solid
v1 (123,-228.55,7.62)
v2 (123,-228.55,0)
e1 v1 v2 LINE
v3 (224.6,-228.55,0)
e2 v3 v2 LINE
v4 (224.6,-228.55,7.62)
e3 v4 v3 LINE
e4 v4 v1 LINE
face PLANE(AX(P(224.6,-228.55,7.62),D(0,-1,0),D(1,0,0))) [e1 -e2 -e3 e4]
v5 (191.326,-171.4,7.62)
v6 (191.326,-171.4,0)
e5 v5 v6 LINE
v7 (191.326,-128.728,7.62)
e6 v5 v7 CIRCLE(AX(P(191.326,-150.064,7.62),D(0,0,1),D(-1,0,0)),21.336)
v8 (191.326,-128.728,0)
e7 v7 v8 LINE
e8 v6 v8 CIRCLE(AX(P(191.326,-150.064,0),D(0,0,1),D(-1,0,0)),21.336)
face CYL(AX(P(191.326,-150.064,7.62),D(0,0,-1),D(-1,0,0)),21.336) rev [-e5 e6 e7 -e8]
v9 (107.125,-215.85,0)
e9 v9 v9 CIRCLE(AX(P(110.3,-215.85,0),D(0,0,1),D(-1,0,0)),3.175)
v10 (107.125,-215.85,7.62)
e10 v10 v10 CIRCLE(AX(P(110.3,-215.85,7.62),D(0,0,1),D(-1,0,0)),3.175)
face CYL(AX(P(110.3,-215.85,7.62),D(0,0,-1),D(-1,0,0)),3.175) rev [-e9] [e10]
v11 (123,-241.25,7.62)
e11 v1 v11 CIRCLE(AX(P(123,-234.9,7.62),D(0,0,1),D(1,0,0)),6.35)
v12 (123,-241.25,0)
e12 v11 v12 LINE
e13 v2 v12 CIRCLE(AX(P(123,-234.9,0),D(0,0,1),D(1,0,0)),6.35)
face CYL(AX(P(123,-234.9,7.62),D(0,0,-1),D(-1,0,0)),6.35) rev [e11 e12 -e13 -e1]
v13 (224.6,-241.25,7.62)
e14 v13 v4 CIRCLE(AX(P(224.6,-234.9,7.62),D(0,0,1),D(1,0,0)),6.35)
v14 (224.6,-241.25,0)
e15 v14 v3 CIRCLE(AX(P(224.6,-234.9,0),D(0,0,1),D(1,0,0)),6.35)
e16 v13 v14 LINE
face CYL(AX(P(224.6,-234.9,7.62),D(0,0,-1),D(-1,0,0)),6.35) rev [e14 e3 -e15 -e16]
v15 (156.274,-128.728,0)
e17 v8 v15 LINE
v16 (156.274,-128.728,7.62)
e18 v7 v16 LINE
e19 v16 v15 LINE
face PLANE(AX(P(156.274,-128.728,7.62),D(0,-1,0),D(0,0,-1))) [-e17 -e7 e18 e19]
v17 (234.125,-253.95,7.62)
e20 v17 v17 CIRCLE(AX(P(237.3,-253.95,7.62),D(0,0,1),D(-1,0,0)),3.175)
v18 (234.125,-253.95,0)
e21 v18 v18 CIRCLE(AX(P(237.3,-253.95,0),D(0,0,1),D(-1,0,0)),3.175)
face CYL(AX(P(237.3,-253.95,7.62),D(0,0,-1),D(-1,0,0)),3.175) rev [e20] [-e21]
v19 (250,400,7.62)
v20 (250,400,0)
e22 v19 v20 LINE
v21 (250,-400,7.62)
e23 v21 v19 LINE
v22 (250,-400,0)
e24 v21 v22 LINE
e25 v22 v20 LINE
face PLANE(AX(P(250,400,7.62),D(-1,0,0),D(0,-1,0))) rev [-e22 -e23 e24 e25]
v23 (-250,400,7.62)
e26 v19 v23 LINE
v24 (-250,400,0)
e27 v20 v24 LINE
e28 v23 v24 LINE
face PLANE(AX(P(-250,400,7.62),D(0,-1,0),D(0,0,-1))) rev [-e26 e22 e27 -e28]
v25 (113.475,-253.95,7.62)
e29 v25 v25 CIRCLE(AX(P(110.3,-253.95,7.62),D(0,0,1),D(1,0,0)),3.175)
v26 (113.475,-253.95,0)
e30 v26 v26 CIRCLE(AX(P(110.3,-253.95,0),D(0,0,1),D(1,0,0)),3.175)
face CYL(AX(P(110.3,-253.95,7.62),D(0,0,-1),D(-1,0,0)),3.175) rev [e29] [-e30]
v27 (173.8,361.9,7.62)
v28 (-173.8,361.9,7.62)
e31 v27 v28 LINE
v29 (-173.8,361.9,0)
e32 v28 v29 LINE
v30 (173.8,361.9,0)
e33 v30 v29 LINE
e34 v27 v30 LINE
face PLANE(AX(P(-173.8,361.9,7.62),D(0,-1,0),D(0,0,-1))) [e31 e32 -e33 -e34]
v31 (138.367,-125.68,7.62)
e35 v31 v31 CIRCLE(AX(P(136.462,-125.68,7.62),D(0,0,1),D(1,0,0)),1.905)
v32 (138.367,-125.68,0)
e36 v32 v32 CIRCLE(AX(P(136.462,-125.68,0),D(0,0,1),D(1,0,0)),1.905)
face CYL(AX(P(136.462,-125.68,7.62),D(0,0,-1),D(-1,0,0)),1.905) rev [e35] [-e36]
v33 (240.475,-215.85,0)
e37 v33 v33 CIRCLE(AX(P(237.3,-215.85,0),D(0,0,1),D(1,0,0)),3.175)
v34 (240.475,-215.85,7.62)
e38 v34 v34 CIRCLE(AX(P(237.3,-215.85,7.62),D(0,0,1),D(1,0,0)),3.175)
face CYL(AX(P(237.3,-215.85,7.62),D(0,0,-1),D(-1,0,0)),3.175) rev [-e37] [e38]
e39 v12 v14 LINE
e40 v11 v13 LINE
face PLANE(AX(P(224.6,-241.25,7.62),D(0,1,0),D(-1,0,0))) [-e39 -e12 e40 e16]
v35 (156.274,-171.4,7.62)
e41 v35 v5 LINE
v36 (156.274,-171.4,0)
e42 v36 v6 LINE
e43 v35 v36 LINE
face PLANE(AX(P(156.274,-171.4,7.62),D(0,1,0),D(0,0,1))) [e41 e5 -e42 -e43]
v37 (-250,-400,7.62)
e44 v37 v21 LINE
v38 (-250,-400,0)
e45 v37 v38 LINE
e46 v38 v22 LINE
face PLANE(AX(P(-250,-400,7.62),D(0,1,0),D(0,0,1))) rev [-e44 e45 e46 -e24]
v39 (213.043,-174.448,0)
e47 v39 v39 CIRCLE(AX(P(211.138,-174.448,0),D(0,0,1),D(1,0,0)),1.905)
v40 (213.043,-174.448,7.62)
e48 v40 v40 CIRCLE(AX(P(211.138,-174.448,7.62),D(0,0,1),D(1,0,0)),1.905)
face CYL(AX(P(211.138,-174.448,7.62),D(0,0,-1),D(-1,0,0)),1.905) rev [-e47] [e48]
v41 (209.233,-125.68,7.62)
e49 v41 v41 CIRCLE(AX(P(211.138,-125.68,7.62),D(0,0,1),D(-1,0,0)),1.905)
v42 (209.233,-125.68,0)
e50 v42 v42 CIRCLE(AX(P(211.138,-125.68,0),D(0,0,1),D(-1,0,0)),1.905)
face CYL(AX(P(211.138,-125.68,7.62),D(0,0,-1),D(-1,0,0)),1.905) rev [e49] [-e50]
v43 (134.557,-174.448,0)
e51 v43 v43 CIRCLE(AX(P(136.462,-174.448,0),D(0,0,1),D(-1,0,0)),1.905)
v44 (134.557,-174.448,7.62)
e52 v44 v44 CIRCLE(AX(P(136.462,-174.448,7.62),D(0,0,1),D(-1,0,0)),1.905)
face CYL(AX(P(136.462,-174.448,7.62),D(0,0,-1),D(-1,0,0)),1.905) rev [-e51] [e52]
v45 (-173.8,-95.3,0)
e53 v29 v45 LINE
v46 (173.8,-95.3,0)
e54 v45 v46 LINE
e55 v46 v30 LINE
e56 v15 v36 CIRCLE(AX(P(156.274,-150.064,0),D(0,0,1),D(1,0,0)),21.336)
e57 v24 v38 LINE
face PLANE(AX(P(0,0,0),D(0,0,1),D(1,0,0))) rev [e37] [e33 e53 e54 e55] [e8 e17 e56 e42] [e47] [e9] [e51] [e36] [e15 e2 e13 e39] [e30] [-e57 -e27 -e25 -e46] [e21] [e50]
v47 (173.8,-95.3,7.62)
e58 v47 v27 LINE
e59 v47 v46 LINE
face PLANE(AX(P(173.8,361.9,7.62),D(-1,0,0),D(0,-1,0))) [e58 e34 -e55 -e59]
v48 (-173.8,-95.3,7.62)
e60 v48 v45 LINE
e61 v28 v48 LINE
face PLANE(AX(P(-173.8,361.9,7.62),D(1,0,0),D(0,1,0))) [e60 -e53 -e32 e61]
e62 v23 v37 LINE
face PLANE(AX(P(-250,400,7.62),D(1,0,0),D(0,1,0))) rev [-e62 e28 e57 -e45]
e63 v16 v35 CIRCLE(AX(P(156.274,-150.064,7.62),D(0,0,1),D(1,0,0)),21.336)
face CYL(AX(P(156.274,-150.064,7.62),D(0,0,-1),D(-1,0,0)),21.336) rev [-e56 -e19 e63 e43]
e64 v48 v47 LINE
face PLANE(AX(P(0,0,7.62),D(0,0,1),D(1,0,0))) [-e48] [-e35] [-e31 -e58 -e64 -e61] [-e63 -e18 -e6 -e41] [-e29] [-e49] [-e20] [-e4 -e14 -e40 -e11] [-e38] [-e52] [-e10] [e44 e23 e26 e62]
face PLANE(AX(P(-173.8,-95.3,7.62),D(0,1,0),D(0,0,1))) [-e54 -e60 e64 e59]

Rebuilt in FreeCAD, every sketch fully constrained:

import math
import FreeCAD as App
import Part
import Sketcher

V = App.Vector
Q = App.Units.Quantity


def add_polygon(sketch, points):
    """Adds a closed chain of lines whose ends are joined by coincident constraints."""
    first, n = sketch.GeometryCount, len(points)
    for a, b in zip(points, points[1:] + points[:1]):
        sketch.addGeometry(Part.LineSegment(App.Vector(*a, 0), App.Vector(*b, 0)), False)
    for i in range(n):
        sketch.addConstraint(Sketcher.Constraint("Coincident", first + i, 2, first + (i + 1) % n, 1))

doc = App.newDocument("Part")
body = doc.addObject("PartDesign::Body", "Body")

# Sketch on XY plane
sketch1 = body.newObject("Sketcher::SketchObject", "Sketch")
sketch1.AttachmentSupport = (doc.getObject("XY_Plane"), [""])
sketch1.MapMode = "FlatFace"
add_polygon(sketch1, [(-250, 400), (-250, -400), (250, -400), (250, 400)])  # lines 0-3
sketch1.addGeometry(Part.Circle(V(110.3, -253.95, 0), V(0, 0, 1), 3.175), False)  # 4
sketch1.addGeometry(Part.Circle(V(110.3, -215.85, 0), V(0, 0, 1), 3.175), False)  # 5
sketch1.addGeometry(Part.Circle(V(136.462, -174.448, 0), V(0, 0, 1), 1.905), False)  # 6
sketch1.addGeometry(Part.Circle(V(136.462, -125.68, 0), V(0, 0, 1), 1.905), False)  # 7
sketch1.addGeometry(Part.ArcOfCircle(Part.Circle(V(224.6, -234.9, 0), V(0, 0, 1), 6.35), math.radians(-90), math.radians(90)), False)  # 8
sketch1.addGeometry(Part.LineSegment(V(224.6, -241.25, 0), V(123, -241.25, 0)), False)  # 9
sketch1.addGeometry(Part.ArcOfCircle(Part.Circle(V(123, -234.9, 0), V(0, 0, 1), 6.35), math.radians(90), math.radians(270)), False)  # 10
sketch1.addGeometry(Part.LineSegment(V(123, -228.55, 0), V(224.6, -228.55, 0)), False)  # 11
sketch1.addGeometry(Part.Circle(V(237.3, -253.95, 0), V(0, 0, 1), 3.175), False)  # 12
sketch1.addGeometry(Part.Circle(V(237.3, -215.85, 0), V(0, 0, 1), 3.175), False)  # 13
sketch1.addGeometry(Part.ArcOfCircle(Part.Circle(V(156.274, -150.064, 0), V(0, 0, 1), 21.336), math.radians(90), math.radians(270)), False)  # 14
sketch1.addGeometry(Part.LineSegment(V(156.274, -128.728, 0), V(191.326, -128.728, 0)), False)  # 15
sketch1.addGeometry(Part.ArcOfCircle(Part.Circle(V(191.326, -150.064, 0), V(0, 0, 1), 21.336), math.radians(-90), math.radians(90)), False)  # 16
sketch1.addGeometry(Part.LineSegment(V(191.326, -171.4, 0), V(156.274, -171.4, 0)), False)  # 17
sketch1.addGeometry(Part.Circle(V(211.138, -174.448, 0), V(0, 0, 1), 1.905), False)  # 18
sketch1.addGeometry(Part.Circle(V(211.138, -125.68, 0), V(0, 0, 1), 1.905), False)  # 19
add_polygon(sketch1, [(173.8, -95.3), (-173.8, -95.3), (-173.8, 361.9), (173.8, 361.9)])  # lines 20-23
sketch1.addConstraint([
    Sketcher.Constraint("Tangent", 8, 1, 9, 1),
    Sketcher.Constraint("Tangent", 9, 2, 10, 2),
    Sketcher.Constraint("Tangent", 10, 1, 11, 1),
    Sketcher.Constraint("Tangent", 11, 2, 8, 2),
    Sketcher.Constraint("Tangent", 14, 1, 15, 1),
    Sketcher.Constraint("Tangent", 15, 2, 16, 2),
    Sketcher.Constraint("Tangent", 16, 1, 17, 1),
    Sketcher.Constraint("Tangent", 17, 2, 14, 2),
    Sketcher.Constraint("Vertical", 0),
    Sketcher.Constraint("Horizontal", 1),
    Sketcher.Constraint("Vertical", 2),
    Sketcher.Constraint("Horizontal", 3),
    Sketcher.Constraint("Horizontal", 9),
    Sketcher.Constraint("Horizontal", 11),
    Sketcher.Constraint("Horizontal", 15),
    Sketcher.Constraint("Horizontal", 17),
    Sketcher.Constraint("Horizontal", 20),
    Sketcher.Constraint("Vertical", 21),
    Sketcher.Constraint("Horizontal", 22),
    Sketcher.Constraint("Vertical", 23),
    Sketcher.Constraint("Equal", 4, 5),
    Sketcher.Constraint("Equal", 6, 7),
    Sketcher.Constraint("Equal", 5, 12),
    Sketcher.Constraint("Equal", 12, 13),
    Sketcher.Constraint("Equal", 7, 18),
    Sketcher.Constraint("Equal", 18, 19),
    Sketcher.Constraint("Symmetric", 0, 2, 2, 2, -1, 1),
    Sketcher.Constraint("Horizontal", 4, 3, 12, 3),
    Sketcher.Constraint("Horizontal", 5, 3, 13, 3),
    Sketcher.Constraint("Horizontal", 6, 3, 18, 3),
    Sketcher.Constraint("Horizontal", 7, 3, 19, 3),
    Sketcher.Constraint("Vertical", 4, 3, 5, 3),
    Sketcher.Constraint("Vertical", 6, 3, 7, 3),
    Sketcher.Constraint("Vertical", 12, 3, 13, 3),
    Sketcher.Constraint("Vertical", 18, 3, 19, 3),
    Sketcher.Constraint("Diameter", 4, Q("0.25 in")),
    Sketcher.Constraint("Diameter", 6, Q("0.15 in")),
    Sketcher.Constraint("DistanceX", 9, 2, 9, 1, Q("4 in")),
    Sketcher.Constraint("DistanceY", 21, 1, 21, 2, Q("18 in")),
    Sketcher.Constraint("Radius", 8, Q("0.25 in")),
    Sketcher.Constraint("Radius", 14, Q("0.84 in")),
    Sketcher.Constraint("DistanceX", 4, 3, 12, 3, Q("5 in")),
    Sketcher.Constraint("DistanceX", 8, 3, 1, 2, Q("1 in")),
    Sketcher.Constraint("DistanceY", 8, 1, 13, 3, Q("1 in")),
    Sketcher.Constraint("DistanceY", 4, 3, 10, 1, Q("1 in")),
    Sketcher.Constraint("DistanceX", 0, 2, 20, 2, Q("3 in")),
    Sketcher.Constraint("DistanceX", 22, 2, 2, 2, Q("3 in")),
    Sketcher.Constraint("DistanceX", 15, 1, 15, 2, Q("1.38 in")),
    Sketcher.Constraint("DistanceX", 4, 3, 8, 3, Q("4.5 in")),
    Sketcher.Constraint("DistanceY", 8, 3, 7, 3, Q("4.3 in")),
    Sketcher.Constraint("DistanceY", 0, 2, 10, 3, Q("6.5 in")),
    Sketcher.Constraint("DistanceY", 6, 3, 14, 1, Q("1.8 in")),
    Sketcher.Constraint("DistanceY", 16, 1, 19, 3, Q("1.8 in")),
    Sketcher.Constraint("DistanceY", 21, 2, 3, 2, Q("1.5 in")),
    Sketcher.Constraint("DistanceX", 5, 3, 6, 3, Q("1.03 in")),
    Sketcher.Constraint("DistanceX", 7, 3, 14, 3, Q("0.78 in")),
    Sketcher.Constraint("DistanceX", 16, 3, 18, 3, Q("0.78 in")),
    Sketcher.Constraint("DistanceX", 1, 1, 1, 2, Q("500 mm")),
    Sketcher.Constraint("DistanceY", 0, 2, 0, 1, Q("800 mm")),
])
pad1 = body.newObject("PartDesign::Pad", "Pad")
pad1.Profile = sketch1
pad1.Length = Q("0.3 in")

doc.recompute()
